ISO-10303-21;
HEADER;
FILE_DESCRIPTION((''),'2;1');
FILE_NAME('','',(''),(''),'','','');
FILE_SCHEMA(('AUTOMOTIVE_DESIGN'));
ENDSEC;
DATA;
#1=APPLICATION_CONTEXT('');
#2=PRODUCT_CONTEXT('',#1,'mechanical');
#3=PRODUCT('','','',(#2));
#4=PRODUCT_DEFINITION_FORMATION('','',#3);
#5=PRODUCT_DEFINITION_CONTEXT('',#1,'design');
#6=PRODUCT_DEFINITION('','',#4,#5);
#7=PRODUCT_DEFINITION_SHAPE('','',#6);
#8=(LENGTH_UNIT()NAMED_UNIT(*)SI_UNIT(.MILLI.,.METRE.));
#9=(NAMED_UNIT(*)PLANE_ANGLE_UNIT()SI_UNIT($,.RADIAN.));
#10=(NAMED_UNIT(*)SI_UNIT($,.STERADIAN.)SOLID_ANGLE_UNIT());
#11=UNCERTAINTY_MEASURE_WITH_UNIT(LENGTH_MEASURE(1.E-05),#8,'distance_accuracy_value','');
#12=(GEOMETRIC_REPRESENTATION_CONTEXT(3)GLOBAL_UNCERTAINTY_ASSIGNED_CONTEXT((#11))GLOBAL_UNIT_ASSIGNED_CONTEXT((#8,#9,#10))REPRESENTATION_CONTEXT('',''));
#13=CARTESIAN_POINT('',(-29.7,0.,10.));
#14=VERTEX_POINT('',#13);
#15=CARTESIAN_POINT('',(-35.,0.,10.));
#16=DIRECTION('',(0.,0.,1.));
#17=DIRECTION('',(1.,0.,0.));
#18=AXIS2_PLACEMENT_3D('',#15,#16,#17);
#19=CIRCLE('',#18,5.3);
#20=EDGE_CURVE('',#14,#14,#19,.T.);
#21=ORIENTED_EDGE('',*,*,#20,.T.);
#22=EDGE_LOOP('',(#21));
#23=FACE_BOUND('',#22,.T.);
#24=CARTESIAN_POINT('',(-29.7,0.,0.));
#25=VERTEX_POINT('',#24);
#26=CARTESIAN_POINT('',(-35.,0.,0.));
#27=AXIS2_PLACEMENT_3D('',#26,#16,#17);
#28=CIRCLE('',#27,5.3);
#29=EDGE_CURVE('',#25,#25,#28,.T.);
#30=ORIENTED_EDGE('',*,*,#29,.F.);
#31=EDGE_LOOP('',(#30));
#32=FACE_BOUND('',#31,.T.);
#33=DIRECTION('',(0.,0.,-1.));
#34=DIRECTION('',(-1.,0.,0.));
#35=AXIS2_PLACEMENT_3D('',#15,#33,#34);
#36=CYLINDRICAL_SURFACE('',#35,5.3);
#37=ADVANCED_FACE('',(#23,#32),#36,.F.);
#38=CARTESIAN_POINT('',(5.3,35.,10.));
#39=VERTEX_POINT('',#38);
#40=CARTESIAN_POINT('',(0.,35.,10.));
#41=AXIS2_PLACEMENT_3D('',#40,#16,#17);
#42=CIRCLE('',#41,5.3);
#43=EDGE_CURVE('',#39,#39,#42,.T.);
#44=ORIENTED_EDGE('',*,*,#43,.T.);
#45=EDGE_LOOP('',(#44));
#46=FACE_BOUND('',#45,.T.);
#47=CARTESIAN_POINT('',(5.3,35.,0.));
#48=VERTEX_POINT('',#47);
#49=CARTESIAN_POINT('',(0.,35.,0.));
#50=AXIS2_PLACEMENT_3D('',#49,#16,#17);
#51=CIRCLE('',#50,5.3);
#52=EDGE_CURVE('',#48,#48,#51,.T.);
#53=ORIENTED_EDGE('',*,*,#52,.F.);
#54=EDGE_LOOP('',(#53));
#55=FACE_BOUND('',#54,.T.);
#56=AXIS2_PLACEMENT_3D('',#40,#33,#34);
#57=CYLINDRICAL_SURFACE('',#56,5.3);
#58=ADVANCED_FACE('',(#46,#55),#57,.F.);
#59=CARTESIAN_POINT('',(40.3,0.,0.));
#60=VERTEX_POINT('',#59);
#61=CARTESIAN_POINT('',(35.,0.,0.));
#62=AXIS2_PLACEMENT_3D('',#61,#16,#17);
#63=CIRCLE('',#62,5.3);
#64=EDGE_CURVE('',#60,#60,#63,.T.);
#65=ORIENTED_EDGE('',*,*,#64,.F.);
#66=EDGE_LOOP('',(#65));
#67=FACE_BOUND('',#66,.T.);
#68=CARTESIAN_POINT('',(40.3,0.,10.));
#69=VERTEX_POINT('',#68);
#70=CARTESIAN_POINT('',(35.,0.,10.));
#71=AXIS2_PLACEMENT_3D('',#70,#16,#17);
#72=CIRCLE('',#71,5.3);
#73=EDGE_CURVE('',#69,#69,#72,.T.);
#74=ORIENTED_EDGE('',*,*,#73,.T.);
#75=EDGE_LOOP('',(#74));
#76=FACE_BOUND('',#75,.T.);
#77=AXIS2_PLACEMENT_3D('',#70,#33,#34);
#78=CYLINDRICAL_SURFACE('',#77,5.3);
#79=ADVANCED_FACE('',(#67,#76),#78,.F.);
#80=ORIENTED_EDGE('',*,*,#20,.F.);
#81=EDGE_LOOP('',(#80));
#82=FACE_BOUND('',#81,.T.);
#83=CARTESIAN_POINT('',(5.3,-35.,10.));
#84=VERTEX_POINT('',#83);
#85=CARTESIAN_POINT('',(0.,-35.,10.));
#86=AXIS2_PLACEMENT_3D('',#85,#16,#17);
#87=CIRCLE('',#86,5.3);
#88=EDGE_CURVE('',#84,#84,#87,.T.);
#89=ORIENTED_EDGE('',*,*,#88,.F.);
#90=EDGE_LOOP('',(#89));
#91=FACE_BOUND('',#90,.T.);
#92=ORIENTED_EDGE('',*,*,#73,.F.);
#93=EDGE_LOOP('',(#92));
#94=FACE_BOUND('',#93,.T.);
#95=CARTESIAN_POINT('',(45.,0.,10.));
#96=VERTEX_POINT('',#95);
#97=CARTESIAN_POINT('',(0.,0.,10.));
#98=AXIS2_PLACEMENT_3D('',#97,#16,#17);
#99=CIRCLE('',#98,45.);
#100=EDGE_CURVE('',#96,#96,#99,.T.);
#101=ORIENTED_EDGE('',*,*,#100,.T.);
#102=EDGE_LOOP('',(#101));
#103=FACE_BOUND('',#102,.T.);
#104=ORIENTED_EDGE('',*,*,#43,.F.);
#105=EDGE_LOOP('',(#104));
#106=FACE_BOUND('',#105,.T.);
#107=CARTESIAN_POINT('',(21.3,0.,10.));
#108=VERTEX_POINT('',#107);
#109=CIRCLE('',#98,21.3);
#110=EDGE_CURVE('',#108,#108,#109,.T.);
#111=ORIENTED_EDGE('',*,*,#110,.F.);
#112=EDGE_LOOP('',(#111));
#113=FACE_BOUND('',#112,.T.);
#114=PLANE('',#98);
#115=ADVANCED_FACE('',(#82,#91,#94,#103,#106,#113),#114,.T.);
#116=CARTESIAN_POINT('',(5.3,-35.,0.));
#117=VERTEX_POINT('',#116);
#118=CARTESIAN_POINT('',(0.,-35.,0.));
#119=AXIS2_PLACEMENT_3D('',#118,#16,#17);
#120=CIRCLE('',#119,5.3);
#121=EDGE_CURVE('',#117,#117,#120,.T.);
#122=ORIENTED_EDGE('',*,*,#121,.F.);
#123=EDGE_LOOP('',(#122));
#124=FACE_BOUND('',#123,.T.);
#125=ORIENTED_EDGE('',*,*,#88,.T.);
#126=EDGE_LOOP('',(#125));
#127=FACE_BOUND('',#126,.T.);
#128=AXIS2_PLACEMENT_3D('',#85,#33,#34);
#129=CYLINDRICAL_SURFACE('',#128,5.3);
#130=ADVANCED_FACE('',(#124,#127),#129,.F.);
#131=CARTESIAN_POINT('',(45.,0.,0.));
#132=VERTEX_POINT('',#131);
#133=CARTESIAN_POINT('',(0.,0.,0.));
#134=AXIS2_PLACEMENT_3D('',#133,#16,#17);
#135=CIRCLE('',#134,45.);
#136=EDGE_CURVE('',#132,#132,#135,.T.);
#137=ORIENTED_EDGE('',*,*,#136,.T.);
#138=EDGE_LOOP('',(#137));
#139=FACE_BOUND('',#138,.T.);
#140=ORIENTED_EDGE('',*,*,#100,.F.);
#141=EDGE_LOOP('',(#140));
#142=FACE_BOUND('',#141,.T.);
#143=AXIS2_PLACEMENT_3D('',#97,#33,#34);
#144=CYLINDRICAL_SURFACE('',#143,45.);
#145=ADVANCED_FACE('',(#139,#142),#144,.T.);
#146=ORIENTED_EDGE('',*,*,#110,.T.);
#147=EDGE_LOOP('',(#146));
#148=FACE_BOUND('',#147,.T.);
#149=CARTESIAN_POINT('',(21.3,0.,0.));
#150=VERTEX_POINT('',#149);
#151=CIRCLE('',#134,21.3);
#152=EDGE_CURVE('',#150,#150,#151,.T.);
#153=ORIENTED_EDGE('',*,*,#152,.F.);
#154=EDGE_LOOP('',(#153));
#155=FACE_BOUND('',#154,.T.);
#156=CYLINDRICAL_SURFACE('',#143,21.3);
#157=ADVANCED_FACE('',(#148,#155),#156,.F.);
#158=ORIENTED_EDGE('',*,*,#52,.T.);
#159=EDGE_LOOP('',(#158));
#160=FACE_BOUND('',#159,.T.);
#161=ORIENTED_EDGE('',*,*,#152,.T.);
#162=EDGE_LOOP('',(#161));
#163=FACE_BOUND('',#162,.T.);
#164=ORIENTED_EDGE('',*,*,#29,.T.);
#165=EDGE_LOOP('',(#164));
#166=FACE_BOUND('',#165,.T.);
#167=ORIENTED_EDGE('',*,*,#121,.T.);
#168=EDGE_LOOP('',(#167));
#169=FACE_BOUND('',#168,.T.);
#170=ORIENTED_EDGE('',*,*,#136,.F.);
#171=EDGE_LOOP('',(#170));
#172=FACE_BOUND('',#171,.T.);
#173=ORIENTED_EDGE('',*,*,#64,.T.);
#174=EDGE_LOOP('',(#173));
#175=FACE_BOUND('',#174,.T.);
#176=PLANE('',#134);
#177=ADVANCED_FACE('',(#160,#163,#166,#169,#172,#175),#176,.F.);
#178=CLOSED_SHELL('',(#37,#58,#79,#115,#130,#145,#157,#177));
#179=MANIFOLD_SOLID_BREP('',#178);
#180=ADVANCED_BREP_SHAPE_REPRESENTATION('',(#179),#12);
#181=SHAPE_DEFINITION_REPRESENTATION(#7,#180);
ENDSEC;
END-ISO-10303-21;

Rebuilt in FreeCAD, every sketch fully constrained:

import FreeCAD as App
import Part
import Sketcher

V = App.Vector

doc = App.newDocument("Part")
body = doc.addObject("PartDesign::Body", "Body")

# Sketch on XY plane
sketch1 = doc.addObject("Sketcher::SketchObject", "Sketch")
body.addObject(sketch1)
sketch1.AttachmentSupport = (doc.XY_Plane, [""])
sketch1.MapMode = "FlatFace"
sketch1.addGeometry([
    Part.Circle(V(0, 0, 0), V(0, 0, 1), 45),  # 0
    Part.Circle(V(0, -35, 0), V(0, 0, 1), 5.3),  # 1
    Part.Circle(V(-35, 0, 0), V(0, 0, 1), 5.3),  # 2
    Part.Circle(V(0, 0, 0), V(0, 0, 1), 21.3),  # 3
    Part.Circle(V(35, 0, 0), V(0, 0, 1), 5.3),  # 4
    Part.Circle(V(0, 35, 0), V(0, 0, 1), 5.3),  # 5
], False)
sketch1.addConstraint([
    Sketcher.Constraint("Coincident", 0, 3, -1, 1),
    Sketcher.Constraint("Coincident", 3, 3, -1, 1),
    Sketcher.Constraint("Equal", 1, 2),
    Sketcher.Constraint("Equal", 2, 4),
    Sketcher.Constraint("Equal", 4, 5),
    Sketcher.Constraint("Symmetric", 2, 3, 4, 3, -1, 1),
    Sketcher.Constraint("Symmetric", 1, 3, 5, 3, -1, 1),
    Sketcher.Constraint("PointOnObject", 1, 3, -2),
    Sketcher.Constraint("PointOnObject", 2, 3, -1),
    Sketcher.Constraint("Diameter", 0, 90.0),
    Sketcher.Constraint("Diameter", 1, 10.6),
    Sketcher.Constraint("Diameter", 3, 42.6),
    Sketcher.Constraint("DistanceY", 1, 3, -1, 1, 35.0),
    Sketcher.Constraint("DistanceX", 2, 3, -1, 1, 35.0),
])
pad1 = doc.addObject("PartDesign::Pad", "Pad")
body.addObject(pad1)
pad1.Profile = sketch1
pad1.Length = 10

doc.recompute()
